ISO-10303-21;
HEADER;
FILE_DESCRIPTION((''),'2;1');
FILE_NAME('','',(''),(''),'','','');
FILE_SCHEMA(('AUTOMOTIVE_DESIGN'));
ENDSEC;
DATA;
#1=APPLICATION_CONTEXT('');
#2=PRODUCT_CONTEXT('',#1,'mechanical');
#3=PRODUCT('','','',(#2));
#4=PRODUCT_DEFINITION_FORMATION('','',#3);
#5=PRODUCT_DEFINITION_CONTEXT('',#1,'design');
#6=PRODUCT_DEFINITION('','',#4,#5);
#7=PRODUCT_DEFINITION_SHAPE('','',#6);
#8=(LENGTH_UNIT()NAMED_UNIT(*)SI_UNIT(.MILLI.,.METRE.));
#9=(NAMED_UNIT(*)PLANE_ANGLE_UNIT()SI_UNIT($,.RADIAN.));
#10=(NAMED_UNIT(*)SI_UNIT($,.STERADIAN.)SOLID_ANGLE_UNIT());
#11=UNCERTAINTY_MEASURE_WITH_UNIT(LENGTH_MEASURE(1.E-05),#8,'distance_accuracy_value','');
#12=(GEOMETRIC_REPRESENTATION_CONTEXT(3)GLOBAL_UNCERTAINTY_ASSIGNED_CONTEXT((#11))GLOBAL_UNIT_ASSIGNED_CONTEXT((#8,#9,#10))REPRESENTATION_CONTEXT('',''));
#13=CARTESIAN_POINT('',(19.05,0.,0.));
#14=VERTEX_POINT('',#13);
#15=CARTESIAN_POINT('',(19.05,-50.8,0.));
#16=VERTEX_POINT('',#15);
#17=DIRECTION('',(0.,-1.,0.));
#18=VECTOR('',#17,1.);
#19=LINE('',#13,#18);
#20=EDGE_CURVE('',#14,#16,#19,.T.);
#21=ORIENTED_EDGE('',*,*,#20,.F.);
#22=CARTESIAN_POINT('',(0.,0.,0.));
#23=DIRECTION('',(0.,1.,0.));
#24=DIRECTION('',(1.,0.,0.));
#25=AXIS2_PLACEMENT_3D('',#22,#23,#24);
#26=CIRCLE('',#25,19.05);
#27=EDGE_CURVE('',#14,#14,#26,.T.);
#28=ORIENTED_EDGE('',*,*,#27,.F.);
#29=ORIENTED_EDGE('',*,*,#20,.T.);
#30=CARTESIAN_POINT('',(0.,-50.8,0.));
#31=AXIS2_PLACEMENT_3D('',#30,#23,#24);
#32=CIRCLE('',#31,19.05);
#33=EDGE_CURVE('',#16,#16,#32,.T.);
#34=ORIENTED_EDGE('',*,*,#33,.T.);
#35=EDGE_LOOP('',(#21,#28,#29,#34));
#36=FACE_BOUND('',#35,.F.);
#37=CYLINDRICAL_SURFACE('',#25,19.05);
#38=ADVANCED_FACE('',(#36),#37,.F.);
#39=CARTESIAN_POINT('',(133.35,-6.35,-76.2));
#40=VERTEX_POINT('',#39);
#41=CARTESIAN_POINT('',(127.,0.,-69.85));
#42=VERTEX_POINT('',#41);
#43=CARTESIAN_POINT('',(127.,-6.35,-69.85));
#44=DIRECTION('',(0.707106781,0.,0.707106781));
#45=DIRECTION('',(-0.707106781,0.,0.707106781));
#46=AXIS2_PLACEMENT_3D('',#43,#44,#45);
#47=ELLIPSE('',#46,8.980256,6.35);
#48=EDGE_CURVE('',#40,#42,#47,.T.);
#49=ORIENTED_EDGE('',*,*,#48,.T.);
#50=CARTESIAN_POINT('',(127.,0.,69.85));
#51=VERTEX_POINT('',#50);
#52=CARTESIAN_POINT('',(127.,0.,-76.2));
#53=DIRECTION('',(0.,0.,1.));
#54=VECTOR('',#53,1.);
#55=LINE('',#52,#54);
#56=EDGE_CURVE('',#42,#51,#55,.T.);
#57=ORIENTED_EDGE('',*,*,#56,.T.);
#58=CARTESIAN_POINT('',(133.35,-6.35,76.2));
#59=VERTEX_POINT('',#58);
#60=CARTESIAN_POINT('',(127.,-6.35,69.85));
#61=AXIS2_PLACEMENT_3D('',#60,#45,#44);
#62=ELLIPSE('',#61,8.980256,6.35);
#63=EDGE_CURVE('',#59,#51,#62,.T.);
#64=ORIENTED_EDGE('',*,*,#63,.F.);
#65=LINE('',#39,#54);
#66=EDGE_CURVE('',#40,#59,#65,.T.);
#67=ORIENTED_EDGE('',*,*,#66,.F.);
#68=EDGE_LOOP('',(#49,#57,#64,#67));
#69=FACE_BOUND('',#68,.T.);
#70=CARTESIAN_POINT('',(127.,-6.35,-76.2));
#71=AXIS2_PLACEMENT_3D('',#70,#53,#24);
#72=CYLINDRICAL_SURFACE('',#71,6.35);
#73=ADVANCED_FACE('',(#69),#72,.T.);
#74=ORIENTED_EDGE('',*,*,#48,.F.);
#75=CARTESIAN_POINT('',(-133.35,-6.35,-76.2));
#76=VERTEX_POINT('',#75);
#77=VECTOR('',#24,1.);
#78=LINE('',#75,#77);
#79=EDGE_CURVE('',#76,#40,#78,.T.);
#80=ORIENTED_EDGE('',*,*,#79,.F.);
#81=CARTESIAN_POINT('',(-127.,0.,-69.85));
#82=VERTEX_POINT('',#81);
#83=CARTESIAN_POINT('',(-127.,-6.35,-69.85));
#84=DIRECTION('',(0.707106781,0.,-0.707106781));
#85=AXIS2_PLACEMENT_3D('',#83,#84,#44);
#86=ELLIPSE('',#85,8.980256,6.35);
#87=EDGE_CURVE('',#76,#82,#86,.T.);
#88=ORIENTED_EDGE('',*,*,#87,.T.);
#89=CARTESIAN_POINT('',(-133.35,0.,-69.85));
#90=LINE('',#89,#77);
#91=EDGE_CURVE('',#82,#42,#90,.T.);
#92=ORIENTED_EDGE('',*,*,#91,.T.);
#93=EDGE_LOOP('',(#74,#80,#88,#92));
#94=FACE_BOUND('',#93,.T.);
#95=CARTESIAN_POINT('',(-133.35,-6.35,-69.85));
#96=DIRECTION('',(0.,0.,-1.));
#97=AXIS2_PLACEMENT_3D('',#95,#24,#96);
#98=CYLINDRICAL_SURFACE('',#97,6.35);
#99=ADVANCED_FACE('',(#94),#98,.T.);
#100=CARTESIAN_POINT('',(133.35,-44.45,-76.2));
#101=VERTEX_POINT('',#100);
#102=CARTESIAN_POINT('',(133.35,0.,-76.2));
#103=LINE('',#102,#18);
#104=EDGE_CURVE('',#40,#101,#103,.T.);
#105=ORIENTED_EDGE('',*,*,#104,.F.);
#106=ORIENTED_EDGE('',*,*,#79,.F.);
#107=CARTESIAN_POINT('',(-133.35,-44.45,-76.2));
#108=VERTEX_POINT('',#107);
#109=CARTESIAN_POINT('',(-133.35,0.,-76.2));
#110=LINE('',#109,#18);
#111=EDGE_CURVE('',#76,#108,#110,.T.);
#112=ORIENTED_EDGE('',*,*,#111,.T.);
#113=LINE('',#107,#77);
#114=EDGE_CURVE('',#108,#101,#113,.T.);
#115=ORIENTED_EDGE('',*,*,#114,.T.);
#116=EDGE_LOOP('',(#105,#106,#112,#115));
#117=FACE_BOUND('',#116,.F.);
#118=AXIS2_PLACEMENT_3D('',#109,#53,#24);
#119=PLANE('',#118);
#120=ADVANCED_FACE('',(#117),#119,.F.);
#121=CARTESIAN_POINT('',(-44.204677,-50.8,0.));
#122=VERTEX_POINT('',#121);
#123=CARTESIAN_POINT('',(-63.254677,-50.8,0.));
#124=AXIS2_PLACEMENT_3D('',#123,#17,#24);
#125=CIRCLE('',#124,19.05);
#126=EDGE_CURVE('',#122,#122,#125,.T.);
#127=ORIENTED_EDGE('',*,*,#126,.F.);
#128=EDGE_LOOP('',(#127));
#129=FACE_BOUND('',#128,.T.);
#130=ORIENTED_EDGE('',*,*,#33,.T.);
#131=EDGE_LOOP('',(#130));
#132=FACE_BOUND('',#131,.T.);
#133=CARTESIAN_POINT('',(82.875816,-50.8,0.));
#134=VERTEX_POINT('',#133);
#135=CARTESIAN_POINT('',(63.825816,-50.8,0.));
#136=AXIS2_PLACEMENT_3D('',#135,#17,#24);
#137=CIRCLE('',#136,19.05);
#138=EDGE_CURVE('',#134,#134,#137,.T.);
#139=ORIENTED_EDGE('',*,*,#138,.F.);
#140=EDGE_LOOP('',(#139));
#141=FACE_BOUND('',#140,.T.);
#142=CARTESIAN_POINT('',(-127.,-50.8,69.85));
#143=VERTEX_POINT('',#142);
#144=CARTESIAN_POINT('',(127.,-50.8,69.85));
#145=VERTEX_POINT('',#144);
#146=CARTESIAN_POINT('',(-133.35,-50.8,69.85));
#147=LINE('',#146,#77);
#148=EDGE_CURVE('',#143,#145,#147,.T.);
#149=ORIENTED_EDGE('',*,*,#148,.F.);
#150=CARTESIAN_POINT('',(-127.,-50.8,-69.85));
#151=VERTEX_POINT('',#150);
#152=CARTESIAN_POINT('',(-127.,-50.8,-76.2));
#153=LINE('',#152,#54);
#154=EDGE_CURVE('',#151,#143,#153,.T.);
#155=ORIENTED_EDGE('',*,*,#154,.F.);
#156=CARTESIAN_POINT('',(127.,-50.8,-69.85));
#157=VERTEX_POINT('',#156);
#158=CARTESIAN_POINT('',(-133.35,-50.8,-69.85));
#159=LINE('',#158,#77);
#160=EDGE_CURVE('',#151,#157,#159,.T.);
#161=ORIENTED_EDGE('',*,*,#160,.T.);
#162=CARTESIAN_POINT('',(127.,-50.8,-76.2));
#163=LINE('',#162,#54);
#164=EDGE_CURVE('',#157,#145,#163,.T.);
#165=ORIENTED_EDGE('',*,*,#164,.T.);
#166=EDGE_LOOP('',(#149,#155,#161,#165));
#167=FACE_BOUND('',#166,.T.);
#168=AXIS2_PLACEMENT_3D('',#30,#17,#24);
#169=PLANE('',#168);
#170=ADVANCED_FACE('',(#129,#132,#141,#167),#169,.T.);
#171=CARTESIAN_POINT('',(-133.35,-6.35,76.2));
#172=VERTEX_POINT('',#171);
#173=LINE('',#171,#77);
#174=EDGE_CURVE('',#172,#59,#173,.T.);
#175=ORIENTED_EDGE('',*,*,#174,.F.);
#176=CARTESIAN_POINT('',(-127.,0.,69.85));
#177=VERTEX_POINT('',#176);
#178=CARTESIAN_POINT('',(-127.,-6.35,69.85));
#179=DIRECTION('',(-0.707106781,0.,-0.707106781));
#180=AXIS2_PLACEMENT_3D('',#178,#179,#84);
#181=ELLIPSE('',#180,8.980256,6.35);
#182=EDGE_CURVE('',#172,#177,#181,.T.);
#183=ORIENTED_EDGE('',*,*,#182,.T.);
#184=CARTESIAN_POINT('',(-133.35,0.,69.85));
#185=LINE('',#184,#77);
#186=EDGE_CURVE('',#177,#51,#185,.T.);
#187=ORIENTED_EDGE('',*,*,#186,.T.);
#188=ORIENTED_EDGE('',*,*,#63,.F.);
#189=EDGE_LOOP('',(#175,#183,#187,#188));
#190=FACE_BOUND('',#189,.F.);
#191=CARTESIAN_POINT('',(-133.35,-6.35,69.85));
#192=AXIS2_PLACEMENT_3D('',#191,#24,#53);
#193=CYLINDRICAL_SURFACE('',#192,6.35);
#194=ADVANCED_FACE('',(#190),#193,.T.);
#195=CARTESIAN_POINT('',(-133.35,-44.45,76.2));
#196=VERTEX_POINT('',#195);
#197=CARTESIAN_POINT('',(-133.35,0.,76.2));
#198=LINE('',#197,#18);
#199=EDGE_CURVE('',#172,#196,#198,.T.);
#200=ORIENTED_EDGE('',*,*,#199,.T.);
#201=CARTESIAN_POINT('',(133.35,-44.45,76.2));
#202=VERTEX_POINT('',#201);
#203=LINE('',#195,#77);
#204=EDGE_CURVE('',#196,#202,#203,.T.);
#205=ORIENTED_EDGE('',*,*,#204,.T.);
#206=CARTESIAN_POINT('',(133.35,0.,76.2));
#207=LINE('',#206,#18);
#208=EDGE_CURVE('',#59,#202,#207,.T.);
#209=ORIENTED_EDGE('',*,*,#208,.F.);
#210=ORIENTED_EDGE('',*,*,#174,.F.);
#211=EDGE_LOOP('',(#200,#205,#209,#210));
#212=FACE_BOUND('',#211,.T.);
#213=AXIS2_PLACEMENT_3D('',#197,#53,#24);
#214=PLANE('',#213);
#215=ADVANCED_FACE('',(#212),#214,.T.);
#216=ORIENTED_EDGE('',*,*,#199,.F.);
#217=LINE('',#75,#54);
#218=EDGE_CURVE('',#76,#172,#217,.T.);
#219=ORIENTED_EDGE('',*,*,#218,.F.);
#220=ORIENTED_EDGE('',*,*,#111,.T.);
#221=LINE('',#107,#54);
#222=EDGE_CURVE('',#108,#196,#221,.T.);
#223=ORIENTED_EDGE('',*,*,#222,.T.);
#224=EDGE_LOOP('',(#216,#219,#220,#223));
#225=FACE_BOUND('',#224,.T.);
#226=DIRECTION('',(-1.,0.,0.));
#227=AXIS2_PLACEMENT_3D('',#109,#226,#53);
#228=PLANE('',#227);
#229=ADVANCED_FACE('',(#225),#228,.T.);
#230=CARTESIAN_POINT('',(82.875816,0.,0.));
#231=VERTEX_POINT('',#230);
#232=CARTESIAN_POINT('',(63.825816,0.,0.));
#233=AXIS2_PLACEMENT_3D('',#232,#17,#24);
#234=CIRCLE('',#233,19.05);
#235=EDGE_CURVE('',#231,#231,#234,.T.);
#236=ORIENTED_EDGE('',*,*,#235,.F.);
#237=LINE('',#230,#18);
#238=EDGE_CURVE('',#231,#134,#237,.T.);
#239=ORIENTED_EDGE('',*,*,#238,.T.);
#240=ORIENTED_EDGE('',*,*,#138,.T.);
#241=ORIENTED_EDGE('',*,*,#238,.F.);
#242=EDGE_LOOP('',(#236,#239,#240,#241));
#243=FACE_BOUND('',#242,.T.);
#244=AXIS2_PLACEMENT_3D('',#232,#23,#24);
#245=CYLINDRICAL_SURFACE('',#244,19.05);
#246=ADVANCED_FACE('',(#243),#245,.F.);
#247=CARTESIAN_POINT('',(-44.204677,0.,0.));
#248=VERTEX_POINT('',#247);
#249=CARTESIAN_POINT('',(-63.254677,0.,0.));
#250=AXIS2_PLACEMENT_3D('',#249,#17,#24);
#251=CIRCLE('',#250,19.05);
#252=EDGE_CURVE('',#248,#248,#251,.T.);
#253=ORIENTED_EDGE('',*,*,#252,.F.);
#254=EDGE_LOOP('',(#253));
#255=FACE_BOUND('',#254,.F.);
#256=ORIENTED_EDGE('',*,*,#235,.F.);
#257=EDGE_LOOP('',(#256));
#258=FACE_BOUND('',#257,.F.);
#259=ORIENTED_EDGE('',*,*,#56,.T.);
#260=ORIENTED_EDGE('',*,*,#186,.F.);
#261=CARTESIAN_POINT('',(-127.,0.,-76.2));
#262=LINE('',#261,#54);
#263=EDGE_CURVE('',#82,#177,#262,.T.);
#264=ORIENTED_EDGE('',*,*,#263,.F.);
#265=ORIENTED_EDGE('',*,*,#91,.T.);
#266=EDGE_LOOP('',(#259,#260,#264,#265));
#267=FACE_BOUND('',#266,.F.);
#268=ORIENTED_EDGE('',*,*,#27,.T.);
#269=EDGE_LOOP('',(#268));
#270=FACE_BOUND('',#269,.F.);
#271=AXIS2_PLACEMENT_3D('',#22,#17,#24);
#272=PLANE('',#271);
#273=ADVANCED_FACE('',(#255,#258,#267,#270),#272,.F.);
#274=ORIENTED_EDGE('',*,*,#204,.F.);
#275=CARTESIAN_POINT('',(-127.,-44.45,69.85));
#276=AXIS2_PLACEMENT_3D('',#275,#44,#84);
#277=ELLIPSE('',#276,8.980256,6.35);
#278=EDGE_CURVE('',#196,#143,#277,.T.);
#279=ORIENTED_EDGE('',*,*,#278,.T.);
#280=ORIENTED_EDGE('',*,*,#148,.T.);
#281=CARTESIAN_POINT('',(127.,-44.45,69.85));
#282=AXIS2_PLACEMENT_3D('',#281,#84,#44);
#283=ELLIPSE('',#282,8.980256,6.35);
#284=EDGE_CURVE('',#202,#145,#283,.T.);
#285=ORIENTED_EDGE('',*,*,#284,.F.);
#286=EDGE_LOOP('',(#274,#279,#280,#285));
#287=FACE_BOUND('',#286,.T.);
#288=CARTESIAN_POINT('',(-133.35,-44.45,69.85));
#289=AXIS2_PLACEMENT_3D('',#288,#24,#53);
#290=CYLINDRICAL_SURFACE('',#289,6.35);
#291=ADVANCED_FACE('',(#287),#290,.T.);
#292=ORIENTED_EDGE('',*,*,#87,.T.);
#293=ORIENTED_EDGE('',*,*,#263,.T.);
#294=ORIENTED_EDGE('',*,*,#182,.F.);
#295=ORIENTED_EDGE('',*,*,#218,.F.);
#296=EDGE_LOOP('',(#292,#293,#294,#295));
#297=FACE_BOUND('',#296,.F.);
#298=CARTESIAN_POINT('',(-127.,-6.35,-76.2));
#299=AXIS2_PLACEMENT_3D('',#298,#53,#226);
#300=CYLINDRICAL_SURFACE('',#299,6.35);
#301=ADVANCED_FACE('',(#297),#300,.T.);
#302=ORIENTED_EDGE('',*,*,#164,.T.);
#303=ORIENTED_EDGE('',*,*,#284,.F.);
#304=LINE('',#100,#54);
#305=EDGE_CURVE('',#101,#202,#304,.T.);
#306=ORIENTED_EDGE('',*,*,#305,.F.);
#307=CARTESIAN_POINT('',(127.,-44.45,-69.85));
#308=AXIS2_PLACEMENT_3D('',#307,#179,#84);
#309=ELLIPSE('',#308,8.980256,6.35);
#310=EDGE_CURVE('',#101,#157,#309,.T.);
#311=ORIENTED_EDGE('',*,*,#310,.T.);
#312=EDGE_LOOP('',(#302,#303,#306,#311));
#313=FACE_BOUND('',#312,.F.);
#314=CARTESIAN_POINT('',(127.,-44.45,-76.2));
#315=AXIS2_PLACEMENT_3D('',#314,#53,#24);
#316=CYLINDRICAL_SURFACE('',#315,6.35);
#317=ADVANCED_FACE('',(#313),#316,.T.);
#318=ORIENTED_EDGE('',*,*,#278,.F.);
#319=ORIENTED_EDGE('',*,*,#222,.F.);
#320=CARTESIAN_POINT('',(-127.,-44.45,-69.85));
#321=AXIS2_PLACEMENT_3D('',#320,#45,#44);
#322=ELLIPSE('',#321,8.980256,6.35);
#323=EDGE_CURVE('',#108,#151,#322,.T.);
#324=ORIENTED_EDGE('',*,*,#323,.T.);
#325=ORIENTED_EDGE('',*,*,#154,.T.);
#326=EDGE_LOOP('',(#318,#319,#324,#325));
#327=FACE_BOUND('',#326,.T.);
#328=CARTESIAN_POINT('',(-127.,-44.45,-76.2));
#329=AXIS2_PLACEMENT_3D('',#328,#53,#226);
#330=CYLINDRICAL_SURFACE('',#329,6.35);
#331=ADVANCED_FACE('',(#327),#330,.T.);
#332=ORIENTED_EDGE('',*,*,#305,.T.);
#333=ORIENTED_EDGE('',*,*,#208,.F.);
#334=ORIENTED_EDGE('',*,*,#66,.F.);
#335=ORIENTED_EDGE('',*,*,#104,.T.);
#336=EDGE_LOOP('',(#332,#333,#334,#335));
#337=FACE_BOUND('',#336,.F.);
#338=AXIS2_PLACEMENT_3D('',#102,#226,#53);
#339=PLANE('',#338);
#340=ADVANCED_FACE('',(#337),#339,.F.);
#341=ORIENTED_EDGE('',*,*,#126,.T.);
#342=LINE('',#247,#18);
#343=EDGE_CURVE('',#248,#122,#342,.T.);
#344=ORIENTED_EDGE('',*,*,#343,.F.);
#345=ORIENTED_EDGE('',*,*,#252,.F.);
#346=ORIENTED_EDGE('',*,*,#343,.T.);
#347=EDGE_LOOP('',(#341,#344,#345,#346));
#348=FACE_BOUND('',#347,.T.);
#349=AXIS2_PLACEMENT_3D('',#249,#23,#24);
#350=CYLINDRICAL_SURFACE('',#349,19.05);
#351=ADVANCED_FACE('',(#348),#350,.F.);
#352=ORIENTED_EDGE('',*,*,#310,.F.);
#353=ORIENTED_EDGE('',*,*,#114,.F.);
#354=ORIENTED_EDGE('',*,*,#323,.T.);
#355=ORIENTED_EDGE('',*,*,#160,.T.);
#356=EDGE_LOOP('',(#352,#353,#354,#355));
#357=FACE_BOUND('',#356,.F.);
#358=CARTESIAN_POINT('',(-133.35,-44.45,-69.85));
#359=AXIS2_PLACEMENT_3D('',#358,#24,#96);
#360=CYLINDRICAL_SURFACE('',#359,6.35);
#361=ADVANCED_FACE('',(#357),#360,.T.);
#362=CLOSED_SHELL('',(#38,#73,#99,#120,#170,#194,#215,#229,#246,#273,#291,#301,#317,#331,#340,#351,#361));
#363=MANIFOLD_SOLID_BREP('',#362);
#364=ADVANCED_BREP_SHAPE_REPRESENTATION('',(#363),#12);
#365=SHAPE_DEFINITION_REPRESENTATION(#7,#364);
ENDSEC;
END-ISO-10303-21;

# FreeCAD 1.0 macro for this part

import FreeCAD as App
import Part
import Sketcher
from FreeCAD import Vector
Q = App.Units.Quantity


def edges_at(feature, points):
    """Names of the edges that pass closest to the given points."""
    edges = feature.Shape.Edges
    near = lambda p: min(range(len(edges)), key=lambda i: edges[i].distToShape(Part.Vertex(*p))[0])
    return sorted({f"Edge{near(p) + 1}" for p in points})


def add_polygon(sketch, points):
    """Adds a closed chain of lines whose ends are joined by coincident constraints."""
    first, n = sketch.GeometryCount, len(points)
    for a, b in zip(points, points[1:] + points[:1]):
        sketch.addGeometry(Part.LineSegment(App.Vector(*a, 0), App.Vector(*b, 0)), False)
    for i in range(n):
        sketch.addConstraint(Sketcher.Constraint("Coincident", first + i, 2, first + (i + 1) % n, 1))

doc = App.newDocument("Part")
body = doc.addObject("PartDesign::Body", "Body")

# Sketch on XZ plane
sketch1 = body.newObject("Sketcher::SketchObject", "Sketch")
sketch1.AttachmentSupport = (doc.getObject("XZ_Plane"), [""])
sketch1.MapMode = "FlatFace"
add_polygon(sketch1, [(-133, 76), (-133, -76), (133, -76), (133, 76)])  # lines 0-3
sketch1.addGeometry(Part.Circle(Vector(-63, 0, 0), Vector(0, 0, 1), 19), False)  # 4
sketch1.addGeometry(Part.Circle(Vector(0, 0, 0), Vector(0, 0, 1), 19), False)  # 5
sketch1.addGeometry(Part.Circle(Vector(64, 0, 0), Vector(0, 0, 1), 19), False)  # 6
sketch1.addConstraint([
    Sketcher.Constraint("Vertical", 0),
    Sketcher.Constraint("Horizontal", 1),
    Sketcher.Constraint("Vertical", 2),
    Sketcher.Constraint("Horizontal", 3),
    Sketcher.Constraint("Coincident", 5, 3, -1, 1),
    Sketcher.Constraint("Equal", 4, 5),
    Sketcher.Constraint("Equal", 5, 6),
    Sketcher.Constraint("Symmetric", 0, 2, 2, 2, -1, 1),
    Sketcher.Constraint("PointOnObject", 4, 3, -1),
    Sketcher.Constraint("PointOnObject", 6, 3, -1),
    Sketcher.Constraint("Diameter", 4, Q("1.5 in")),
    Sketcher.Constraint("DistanceY", 0, 2, 0, 1, Q("6 in")),
    Sketcher.Constraint("DistanceX", 1, 1, 1, 2, Q("10.5 in")),
    Sketcher.Constraint("DistanceX", 4, 3, -1, 1, Q("63.254677 mm")),
    Sketcher.Constraint("DistanceX", -1, 1, 6, 3, Q("63.825816 mm")),
])
pad1 = body.newObject("PartDesign::Pad", "Pad")
pad1.Profile = sketch1
pad1.Length = Q("2 in")
doc.recompute()

fillet = body.newObject("PartDesign::Fillet", "Fillet")
fillet.Base = (pad1, edges_at(pad1, [
    (0, -50.8, -76.2),
    (133.35, -50.8, 0),
    (0, -50.8, 76.2),
    (-133.35, -50.8, 0),
    (0, 0, 76.2),
    (133.35, 0, 0),
    (0, 0, -76.2),
    (-133.35, 0, 0),
]))
fillet.Radius = Q("0.25 in")

doc.recompute()
